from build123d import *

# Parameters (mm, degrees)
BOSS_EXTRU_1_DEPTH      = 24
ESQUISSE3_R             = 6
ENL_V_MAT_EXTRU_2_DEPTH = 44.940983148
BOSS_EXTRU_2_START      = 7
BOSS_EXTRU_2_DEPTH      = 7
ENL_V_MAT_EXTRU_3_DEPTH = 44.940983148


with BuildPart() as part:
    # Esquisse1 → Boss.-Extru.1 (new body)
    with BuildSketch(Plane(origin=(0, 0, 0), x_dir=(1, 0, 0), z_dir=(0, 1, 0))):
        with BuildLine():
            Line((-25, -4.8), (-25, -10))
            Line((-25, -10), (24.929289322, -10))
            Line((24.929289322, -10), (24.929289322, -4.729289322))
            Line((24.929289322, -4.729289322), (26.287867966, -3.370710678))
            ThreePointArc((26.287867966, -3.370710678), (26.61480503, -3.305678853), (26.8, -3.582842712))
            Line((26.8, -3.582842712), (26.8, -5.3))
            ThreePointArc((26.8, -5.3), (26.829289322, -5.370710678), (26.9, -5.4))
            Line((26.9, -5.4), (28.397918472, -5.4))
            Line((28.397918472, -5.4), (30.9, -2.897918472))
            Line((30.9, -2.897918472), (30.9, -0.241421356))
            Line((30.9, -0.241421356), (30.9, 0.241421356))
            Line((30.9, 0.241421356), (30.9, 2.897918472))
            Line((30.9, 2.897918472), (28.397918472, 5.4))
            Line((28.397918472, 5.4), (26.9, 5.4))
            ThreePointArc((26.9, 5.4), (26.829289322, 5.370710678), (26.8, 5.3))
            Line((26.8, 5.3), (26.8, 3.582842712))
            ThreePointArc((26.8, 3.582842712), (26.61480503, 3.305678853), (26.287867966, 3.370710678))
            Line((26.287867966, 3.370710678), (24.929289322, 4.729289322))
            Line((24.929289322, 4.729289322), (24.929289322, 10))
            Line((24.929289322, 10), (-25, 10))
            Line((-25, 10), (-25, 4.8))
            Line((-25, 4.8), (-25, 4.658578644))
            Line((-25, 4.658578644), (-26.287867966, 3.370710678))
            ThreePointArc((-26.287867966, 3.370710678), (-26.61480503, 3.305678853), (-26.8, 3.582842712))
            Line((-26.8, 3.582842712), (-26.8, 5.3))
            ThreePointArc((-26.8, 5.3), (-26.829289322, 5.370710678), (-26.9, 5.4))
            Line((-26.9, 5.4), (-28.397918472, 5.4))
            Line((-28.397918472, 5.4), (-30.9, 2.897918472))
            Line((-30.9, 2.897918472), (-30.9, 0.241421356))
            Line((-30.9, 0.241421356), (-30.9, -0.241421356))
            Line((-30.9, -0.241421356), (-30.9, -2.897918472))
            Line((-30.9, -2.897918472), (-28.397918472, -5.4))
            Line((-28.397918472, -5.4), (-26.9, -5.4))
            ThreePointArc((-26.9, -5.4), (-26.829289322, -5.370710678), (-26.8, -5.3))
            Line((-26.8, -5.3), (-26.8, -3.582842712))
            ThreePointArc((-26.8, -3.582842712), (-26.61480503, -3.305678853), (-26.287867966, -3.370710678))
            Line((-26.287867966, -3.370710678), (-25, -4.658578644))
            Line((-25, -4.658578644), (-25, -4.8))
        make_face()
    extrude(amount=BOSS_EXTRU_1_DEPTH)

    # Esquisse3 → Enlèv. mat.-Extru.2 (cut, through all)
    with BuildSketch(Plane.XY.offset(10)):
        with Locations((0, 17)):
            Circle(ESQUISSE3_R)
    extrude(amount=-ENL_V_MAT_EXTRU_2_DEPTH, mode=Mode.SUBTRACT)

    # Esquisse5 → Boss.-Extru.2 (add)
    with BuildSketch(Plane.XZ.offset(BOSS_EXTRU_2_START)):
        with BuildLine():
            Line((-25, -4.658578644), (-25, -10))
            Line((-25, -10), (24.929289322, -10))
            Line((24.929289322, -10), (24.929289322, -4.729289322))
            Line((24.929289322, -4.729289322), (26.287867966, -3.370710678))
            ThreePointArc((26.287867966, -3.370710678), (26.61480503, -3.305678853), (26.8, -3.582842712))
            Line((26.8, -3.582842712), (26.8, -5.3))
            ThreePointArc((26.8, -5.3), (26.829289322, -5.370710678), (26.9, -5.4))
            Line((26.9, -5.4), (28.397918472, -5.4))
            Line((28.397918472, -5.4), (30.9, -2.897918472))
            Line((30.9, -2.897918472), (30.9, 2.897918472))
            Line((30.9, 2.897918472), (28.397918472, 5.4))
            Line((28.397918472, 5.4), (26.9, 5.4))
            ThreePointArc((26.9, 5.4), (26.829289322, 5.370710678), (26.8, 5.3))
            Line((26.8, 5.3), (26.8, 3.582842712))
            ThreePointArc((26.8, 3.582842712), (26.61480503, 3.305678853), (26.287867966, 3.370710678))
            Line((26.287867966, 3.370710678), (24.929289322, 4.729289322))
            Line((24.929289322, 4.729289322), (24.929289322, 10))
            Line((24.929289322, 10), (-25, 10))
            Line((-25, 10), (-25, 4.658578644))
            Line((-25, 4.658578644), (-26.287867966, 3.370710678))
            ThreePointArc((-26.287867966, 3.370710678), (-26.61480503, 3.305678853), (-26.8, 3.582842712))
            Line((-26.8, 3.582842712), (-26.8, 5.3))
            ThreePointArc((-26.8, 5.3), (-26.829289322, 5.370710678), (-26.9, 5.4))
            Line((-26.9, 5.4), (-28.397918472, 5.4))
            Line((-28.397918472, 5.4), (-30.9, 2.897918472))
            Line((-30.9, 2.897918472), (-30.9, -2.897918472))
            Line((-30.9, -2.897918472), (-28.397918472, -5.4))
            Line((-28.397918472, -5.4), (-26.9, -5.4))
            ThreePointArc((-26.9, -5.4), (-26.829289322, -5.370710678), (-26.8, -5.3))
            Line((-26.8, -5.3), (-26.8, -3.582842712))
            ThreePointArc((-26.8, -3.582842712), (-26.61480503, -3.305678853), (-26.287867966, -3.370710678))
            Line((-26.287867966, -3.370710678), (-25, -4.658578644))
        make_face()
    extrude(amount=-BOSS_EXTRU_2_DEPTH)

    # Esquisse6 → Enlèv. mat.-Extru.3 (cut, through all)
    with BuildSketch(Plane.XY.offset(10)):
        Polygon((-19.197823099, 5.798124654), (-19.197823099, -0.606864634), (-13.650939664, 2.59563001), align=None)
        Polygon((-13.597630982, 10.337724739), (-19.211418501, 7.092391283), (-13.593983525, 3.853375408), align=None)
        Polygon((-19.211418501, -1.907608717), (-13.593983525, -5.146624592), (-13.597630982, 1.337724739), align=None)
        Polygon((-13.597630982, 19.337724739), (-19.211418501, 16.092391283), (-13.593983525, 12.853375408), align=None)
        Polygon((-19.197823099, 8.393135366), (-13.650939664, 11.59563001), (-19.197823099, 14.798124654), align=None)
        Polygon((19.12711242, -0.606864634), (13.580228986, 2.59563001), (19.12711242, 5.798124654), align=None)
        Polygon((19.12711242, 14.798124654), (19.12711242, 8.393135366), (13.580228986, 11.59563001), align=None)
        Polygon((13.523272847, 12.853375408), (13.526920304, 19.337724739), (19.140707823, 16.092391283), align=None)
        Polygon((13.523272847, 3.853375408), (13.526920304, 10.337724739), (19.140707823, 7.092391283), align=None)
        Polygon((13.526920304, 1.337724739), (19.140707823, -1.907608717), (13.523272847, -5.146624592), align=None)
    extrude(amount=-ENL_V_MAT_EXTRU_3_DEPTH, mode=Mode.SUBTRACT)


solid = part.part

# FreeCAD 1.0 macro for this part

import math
import FreeCAD as App
import Part
import Sketcher
from FreeCAD import Vector
Q = App.Units.Quantity

doc = App.newDocument("Part")
body = doc.addObject("PartDesign::Body", "Body")

sketch1 = body.newObject("Sketcher::SketchObject", "Sketch")
sketch1.AttachmentSupport = (doc.getObject("XZ_Plane"), [""])
sketch1.MapMode = "FlatFace"
sketch1.addGeometry([
    Part.LineSegment(Vector(-25, 10, 0), Vector(24.93, 10, 0)),
    Part.LineSegment(Vector(24.93, 10, 0), Vector(24.93, 4.73, 0)),
    Part.LineSegment(Vector(24.93, 4.73, 0), Vector(26.29, 3.37, 0)),
    Part.ArcOfCircle(Part.Circle(Vector(26.5, 3.58, 0), Vector(0, 0, 1), 0.3), math.radians(-135), math.radians(0)),
    Part.LineSegment(Vector(26.8, 3.58, 0), Vector(26.8, 5.3, 0)),
    Part.ArcOfCircle(Part.Circle(Vector(26.9, 5.3, 0), Vector(0, 0, 1), 0.1), math.radians(90), math.radians(180)),
    Part.LineSegment(Vector(26.9, 5.4, 0), Vector(28.4, 5.4, 0)),
    Part.LineSegment(Vector(28.4, 5.4, 0), Vector(30.9, 2.9, 0)),
    Part.LineSegment(Vector(30.9, 2.9, 0), Vector(30.9, -2.9, 0)),
    Part.LineSegment(Vector(30.9, -2.9, 0), Vector(28.4, -5.4, 0)),
    Part.LineSegment(Vector(28.4, -5.4, 0), Vector(26.9, -5.4, 0)),
    Part.ArcOfCircle(Part.Circle(Vector(26.9, -5.3, 0), Vector(0, 0, 1), 0.1), math.radians(180), math.radians(270)),
    Part.LineSegment(Vector(26.8, -5.3, 0), Vector(26.8, -3.58, 0)),
    Part.ArcOfCircle(Part.Circle(Vector(26.5, -3.58, 0), Vector(0, 0, 1), 0.3), math.radians(0), math.radians(135)),
    Part.LineSegment(Vector(26.29, -3.37, 0), Vector(24.93, -4.73, 0)),
    Part.LineSegment(Vector(24.93, -4.73, 0), Vector(24.93, -10, 0)),
    Part.LineSegment(Vector(24.93, -10, 0), Vector(-25, -10, 0)),
    Part.LineSegment(Vector(-25, -10, 0), Vector(-25, -4.66, 0)),
    Part.LineSegment(Vector(-25, -4.66, 0), Vector(-26.29, -3.37, 0)),
    Part.ArcOfCircle(Part.Circle(Vector(-26.5, -3.58, 0), Vector(0, 0, 1), 0.3), math.radians(45), math.radians(180)),
    Part.LineSegment(Vector(-26.8, -3.58, 0), Vector(-26.8, -5.3, 0)),
    Part.ArcOfCircle(Part.Circle(Vector(-26.9, -5.3, 0), Vector(0, 0, 1), 0.1), math.radians(-90), math.radians(0)),
    Part.LineSegment(Vector(-26.9, -5.4, 0), Vector(-28.4, -5.4, 0)),
    Part.LineSegment(Vector(-28.4, -5.4, 0), Vector(-30.9, -2.9, 0)),
    Part.LineSegment(Vector(-30.9, -2.9, 0), Vector(-30.9, 2.9, 0)),
    Part.LineSegment(Vector(-30.9, 2.9, 0), Vector(-28.4, 5.4, 0)),
    Part.LineSegment(Vector(-28.4, 5.4, 0), Vector(-26.9, 5.4, 0)),
    Part.ArcOfCircle(Part.Circle(Vector(-26.9, 5.3, 0), Vector(0, 0, 1), 0.1), math.radians(0), math.radians(90)),
    Part.LineSegment(Vector(-26.8, 5.3, 0), Vector(-26.8, 3.58, 0)),
    Part.ArcOfCircle(Part.Circle(Vector(-26.5, 3.58, 0), Vector(0, 0, 1), 0.3), math.radians(-180), math.radians(-45)),
    Part.LineSegment(Vector(-26.29, 3.37, 0), Vector(-25, 4.66, 0)),
    Part.LineSegment(Vector(-25, 4.66, 0), Vector(-25, 10, 0)),
], False)
sketch1.addConstraint([
    Sketcher.Constraint("Coincident", 0, 2, 1, 1),
    Sketcher.Constraint("Coincident", 1, 2, 2, 1),
    Sketcher.Constraint("Tangent", 2, 2, 3, 1),
    Sketcher.Constraint("Tangent", 3, 2, 4, 1),
    Sketcher.Constraint("Tangent", 4, 2, 5, 2),
    Sketcher.Constraint("Tangent", 5, 1, 6, 1),
    Sketcher.Constraint("Coincident", 6, 2, 7, 1),
    Sketcher.Constraint("Coincident", 7, 2, 8, 1),
    Sketcher.Constraint("Coincident", 8, 2, 9, 1),
    Sketcher.Constraint("Coincident", 9, 2, 10, 1),
    Sketcher.Constraint("Tangent", 10, 2, 11, 2),
    Sketcher.Constraint("Tangent", 11, 1, 12, 1),
    Sketcher.Constraint("Tangent", 12, 2, 13, 1),
    Sketcher.Constraint("Tangent", 13, 2, 14, 1),
    Sketcher.Constraint("Coincident", 14, 2, 15, 1),
    Sketcher.Constraint("Coincident", 15, 2, 16, 1),
    Sketcher.Constraint("Coincident", 16, 2, 17, 1),
    Sketcher.Constraint("Coincident", 17, 2, 18, 1),
    Sketcher.Constraint("Tangent", 18, 2, 19, 1),
    Sketcher.Constraint("Tangent", 19, 2, 20, 1),
    Sketcher.Constraint("Tangent", 20, 2, 21, 2),
    Sketcher.Constraint("Tangent", 21, 1, 22, 1),
    Sketcher.Constraint("Coincident", 22, 2, 23, 1),
    Sketcher.Constraint("Coincident", 23, 2, 24, 1),
    Sketcher.Constraint("Coincident", 24, 2, 25, 1),
    Sketcher.Constraint("Coincident", 25, 2, 26, 1),
    Sketcher.Constraint("Tangent", 26, 2, 27, 2),
    Sketcher.Constraint("Tangent", 27, 1, 28, 1),
    Sketcher.Constraint("Tangent", 28, 2, 29, 1),
    Sketcher.Constraint("Tangent", 29, 2, 30, 1),
    Sketcher.Constraint("Coincident", 30, 2, 31, 1),
    Sketcher.Constraint("Coincident", 31, 2, 0, 1),
    Sketcher.Constraint("Horizontal", 0),
    Sketcher.Constraint("Vertical", 1),
    Sketcher.Constraint("Vertical", 4),
    Sketcher.Constraint("Horizontal", 6),
    Sketcher.Constraint("Vertical", 8),
    Sketcher.Constraint("Horizontal", 10),
    Sketcher.Constraint("Vertical", 12),
    Sketcher.Constraint("Vertical", 15),
    Sketcher.Constraint("Horizontal", 16),
    Sketcher.Constraint("Vertical", 17),
    Sketcher.Constraint("Vertical", 20),
    Sketcher.Constraint("Horizontal", 22),
    Sketcher.Constraint("Vertical", 24),
    Sketcher.Constraint("Horizontal", 26),
    Sketcher.Constraint("Vertical", 28),
    Sketcher.Constraint("Vertical", 31),
    Sketcher.Constraint("Equal", 5, 11),
    Sketcher.Constraint("Equal", 3, 13),
    Sketcher.Constraint("Equal", 13, 19),
    Sketcher.Constraint("Equal", 11, 21),
    Sketcher.Constraint("Equal", 21, 27),
    Sketcher.Constraint("Equal", 19, 29),
    Sketcher.Constraint("Symmetric", 3, 3, 19, 3, -1, 1),
    Sketcher.Constraint("Symmetric", 11, 3, 27, 3, -1, 1),
    Sketcher.Constraint("Symmetric", 6, 2, 22, 2, -1, 1),
    Sketcher.Constraint("Symmetric", 7, 2, 23, 2, -1, 1),
    Sketcher.Constraint("Symmetric", 13, 2, 29, 2, -1, 1),
    Sketcher.Constraint("Symmetric", 13, 3, 19, 3, -2),
    Sketcher.Constraint("Symmetric", 9, 2, 22, 2, -2),
    Sketcher.Constraint("Symmetric", 1, 2, 14, 2, -1),
    Sketcher.Constraint("Symmetric", 17, 2, 30, 2, -1),
    Sketcher.Constraint("Parallel", 2, 7),
    Sketcher.Constraint("Perpendicular", 7, 9),
    Sketcher.Constraint("Parallel", 9, 14),
    Sketcher.Constraint("Perpendicular", 23, 25),
    Sketcher.Constraint("Horizontal", 7, 2, 24, 2),
    Sketcher.Constraint("Equal", 1, 15),
    Sketcher.Constraint("Radius", 3, Q("0.3 mm")),
    Sketcher.Constraint("Radius", 5, Q("0.1 mm")),
    Sketcher.Constraint("DistanceY", -1, 1, 0, 2, Q("10 mm")),
    Sketcher.Constraint("DistanceX", 16, 2, -1, 1, Q("25 mm")),
    Sketcher.Constraint("DistanceX", 19, 3, 13, 3, Q("53 mm")),
    Sketcher.Constraint("DistanceX", 5, 3, 7, 2, Q("4 mm")),
    Sketcher.Constraint("DistanceY", -1, 1, 5, 3, Q("5.3 mm")),
    Sketcher.Constraint("DistanceX", 0, 1, 0, 2, Q("49.929289 mm")),
    Sketcher.Constraint("DistanceX", 6, 1, 6, 2, Q("1.497918 mm")),
    Sketcher.Constraint("DistanceY", 1, 2, 1, 1, Q("5.270711 mm")),
])
pad1 = body.newObject("PartDesign::Pad", "Pad")
pad1.Profile = sketch1
pad1.Length = 24
pad1.Reversed = True

sketch2 = body.newObject("Sketcher::SketchObject", "Sketch001")
sketch2.AttachmentSupport = (doc.getObject("XY_Plane"), [""])
sketch2.MapMode = "FlatFace"
sketch2.AttachmentOffset = App.Placement(Vector(0, 0, 10), App.Rotation())
sketch2.addGeometry(Part.Circle(Vector(0, 17, 0), Vector(0, 0, 1), 6), False)
sketch2.addConstraint([
    Sketcher.Constraint("PointOnObject", 0, 3, -2),
    Sketcher.Constraint("Diameter", 0, Q("12 mm")),
    Sketcher.Constraint("DistanceY", -1, 1, 0, 3, Q("17 mm")),
])
pocket1 = body.newObject("PartDesign::Pocket", "Pocket")
pocket1.Profile = sketch2
pocket1.Type = "ThroughAll"

sketch3 = body.newObject("Sketcher::SketchObject", "Sketch002")
sketch3.AttachmentSupport = (doc.getObject("XZ_Plane"), [""])
sketch3.MapMode = "FlatFace"
sketch3.AttachmentOffset = App.Placement(Vector(0, 0, 7), App.Rotation())
sketch3.addGeometry([
    Part.LineSegment(Vector(-25, -4.66, 0), Vector(-25, -10, 0)),
    Part.LineSegment(Vector(-25, -10, 0), Vector(24.93, -10, 0)),
    Part.LineSegment(Vector(24.93, -10, 0), Vector(24.93, -4.73, 0)),
    Part.LineSegment(Vector(24.93, -4.73, 0), Vector(26.29, -3.37, 0)),
    Part.ArcOfCircle(Part.Circle(Vector(26.5, -3.58, 0), Vector(0, 0, 1), 0.3), math.radians(0), math.radians(135)),
    Part.LineSegment(Vector(26.8, -3.58, 0), Vector(26.8, -5.3, 0)),
    Part.ArcOfCircle(Part.Circle(Vector(26.9, -5.3, 0), Vector(0, 0, 1), 0.1), math.radians(180), math.radians(270)),
    Part.LineSegment(Vector(26.9, -5.4, 0), Vector(28.4, -5.4, 0)),
    Part.LineSegment(Vector(28.4, -5.4, 0), Vector(30.9, -2.9, 0)),
    Part.LineSegment(Vector(30.9, -2.9, 0), Vector(30.9, 2.9, 0)),
    Part.LineSegment(Vector(30.9, 2.9, 0), Vector(28.4, 5.4, 0)),
    Part.LineSegment(Vector(28.4, 5.4, 0), Vector(26.9, 5.4, 0)),
    Part.ArcOfCircle(Part.Circle(Vector(26.9, 5.3, 0), Vector(0, 0, 1), 0.1), math.radians(90), math.radians(180)),
    Part.LineSegment(Vector(26.8, 5.3, 0), Vector(26.8, 3.58, 0)),
    Part.ArcOfCircle(Part.Circle(Vector(26.5, 3.58, 0), Vector(0, 0, 1), 0.3), math.radians(-135), math.radians(0)),
    Part.LineSegment(Vector(26.29, 3.37, 0), Vector(24.93, 4.73, 0)),
    Part.LineSegment(Vector(24.93, 4.73, 0), Vector(24.93, 10, 0)),
    Part.LineSegment(Vector(24.93, 10, 0), Vector(-25, 10, 0)),
    Part.LineSegment(Vector(-25, 10, 0), Vector(-25, 4.66, 0)),
    Part.LineSegment(Vector(-25, 4.66, 0), Vector(-26.29, 3.37, 0)),
    Part.ArcOfCircle(Part.Circle(Vector(-26.5, 3.58, 0), Vector(0, 0, 1), 0.3), math.radians(-180), math.radians(-45)),
    Part.LineSegment(Vector(-26.8, 3.58, 0), Vector(-26.8, 5.3, 0)),
    Part.ArcOfCircle(Part.Circle(Vector(-26.9, 5.3, 0), Vector(0, 0, 1), 0.1), math.radians(0), math.radians(90)),
    Part.LineSegment(Vector(-26.9, 5.4, 0), Vector(-28.4, 5.4, 0)),
    Part.LineSegment(Vector(-28.4, 5.4, 0), Vector(-30.9, 2.9, 0)),
    Part.LineSegment(Vector(-30.9, 2.9, 0), Vector(-30.9, -2.9, 0)),
    Part.LineSegment(Vector(-30.9, -2.9, 0), Vector(-28.4, -5.4, 0)),
    Part.LineSegment(Vector(-28.4, -5.4, 0), Vector(-26.9, -5.4, 0)),
    Part.ArcOfCircle(Part.Circle(Vector(-26.9, -5.3, 0), Vector(0, 0, 1), 0.1), math.radians(-90), math.radians(0)),
    Part.LineSegment(Vector(-26.8, -5.3, 0), Vector(-26.8, -3.58, 0)),
    Part.ArcOfCircle(Part.Circle(Vector(-26.5, -3.58, 0), Vector(0, 0, 1), 0.3), math.radians(45), math.radians(180)),
    Part.LineSegment(Vector(-26.29, -3.37, 0), Vector(-25, -4.66, 0)),
], False)
sketch3.addConstraint([
    Sketcher.Constraint("Coincident", 0, 2, 1, 1),
    Sketcher.Constraint("Coincident", 1, 2, 2, 1),
    Sketcher.Constraint("Coincident", 2, 2, 3, 1),
    Sketcher.Constraint("Tangent", 3, 2, 4, 2),
    Sketcher.Constraint("Tangent", 4, 1, 5, 1),
    Sketcher.Constraint("Tangent", 5, 2, 6, 1),
    Sketcher.Constraint("Tangent", 6, 2, 7, 1),
    Sketcher.Constraint("Coincident", 7, 2, 8, 1),
    Sketcher.Constraint("Coincident", 8, 2, 9, 1),
    Sketcher.Constraint("Coincident", 9, 2, 10, 1),
    Sketcher.Constraint("Coincident", 10, 2, 11, 1),
    Sketcher.Constraint("Tangent", 11, 2, 12, 1),
    Sketcher.Constraint("Tangent", 12, 2, 13, 1),
    Sketcher.Constraint("Tangent", 13, 2, 14, 2),
    Sketcher.Constraint("Tangent", 14, 1, 15, 1),
    Sketcher.Constraint("Coincident", 15, 2, 16, 1),
    Sketcher.Constraint("Coincident", 16, 2, 17, 1),
    Sketcher.Constraint("Coincident", 17, 2, 18, 1),
    Sketcher.Constraint("Coincident", 18, 2, 19, 1),
    Sketcher.Constraint("Tangent", 19, 2, 20, 2),
    Sketcher.Constraint("Tangent", 20, 1, 21, 1),
    Sketcher.Constraint("Tangent", 21, 2, 22, 1),
    Sketcher.Constraint("Tangent", 22, 2, 23, 1),
    Sketcher.Constraint("Coincident", 23, 2, 24, 1),
    Sketcher.Constraint("Coincident", 24, 2, 25, 1),
    Sketcher.Constraint("Coincident", 25, 2, 26, 1),
    Sketcher.Constraint("Coincident", 26, 2, 27, 1),
    Sketcher.Constraint("Tangent", 27, 2, 28, 1),
    Sketcher.Constraint("Tangent", 28, 2, 29, 1),
    Sketcher.Constraint("Tangent", 29, 2, 30, 2),
    Sketcher.Constraint("Tangent", 30, 1, 31, 1),
    Sketcher.Constraint("Coincident", 31, 2, 0, 1),
    Sketcher.Constraint("Vertical", 0),
    Sketcher.Constraint("Horizontal", 1),
    Sketcher.Constraint("Vertical", 2),
    Sketcher.Constraint("Vertical", 5),
    Sketcher.Constraint("Horizontal", 7),
    Sketcher.Constraint("Vertical", 9),
    Sketcher.Constraint("Horizontal", 11),
    Sketcher.Constraint("Vertical", 13),
    Sketcher.Constraint("Vertical", 16),
    Sketcher.Constraint("Horizontal", 17),
    Sketcher.Constraint("Vertical", 18),
    Sketcher.Constraint("Vertical", 21),
    Sketcher.Constraint("Horizontal", 23),
    Sketcher.Constraint("Vertical", 25),
    Sketcher.Constraint("Horizontal", 27),
    Sketcher.Constraint("Vertical", 29),
    Sketcher.Constraint("Equal", 6, 12),
    Sketcher.Constraint("Equal", 4, 14),
    Sketcher.Constraint("Equal", 14, 20),
    Sketcher.Constraint("Equal", 12, 22),
    Sketcher.Constraint("Equal", 22, 28),
    Sketcher.Constraint("Equal", 20, 30),
    Sketcher.Constraint("Symmetric", 4, 3, 20, 3, -1, 1),
    Sketcher.Constraint("Symmetric", 12, 3, 28, 3, -1, 1),
    Sketcher.Constraint("Symmetric", 7, 2, 23, 2, -1, 1),
    Sketcher.Constraint("Symmetric", 8, 2, 24, 2, -1, 1),
    Sketcher.Constraint("Symmetric", 14, 1, 30, 1, -1, 1),
    Sketcher.Constraint("Symmetric", 14, 3, 20, 3, -2),
    Sketcher.Constraint("Symmetric", 10, 2, 23, 2, -2),
    Sketcher.Constraint("Symmetric", 2, 2, 15, 2, -1),
    Sketcher.Constraint("Symmetric", 0, 2, 17, 2, -1),
    Sketcher.Constraint("Parallel", 3, 8),
    Sketcher.Constraint("Perpendicular", 8, 10),
    Sketcher.Constraint("Parallel", 10, 15),
    Sketcher.Constraint("Perpendicular", 15, 19),
    Sketcher.Constraint("Perpendicular", 24, 26),
    Sketcher.Constraint("Horizontal", 8, 2, 25, 2),
    Sketcher.Constraint("Radius", 4, Q("0.3 mm")),
    Sketcher.Constraint("Radius", 6, Q("0.1 mm")),
    Sketcher.Constraint("DistanceX", 0, 2, -1, 1, Q("25 mm")),
    Sketcher.Constraint("DistanceY", 0, 2, -1, 1, Q("10 mm")),
    Sketcher.Constraint("DistanceX", 20, 3, 14, 3, Q("53 mm")),
    Sketcher.Constraint("DistanceX", 6, 3, 8, 2, Q("4 mm")),
    Sketcher.Constraint("DistanceY", 6, 3, -1, 1, Q("5.3 mm")),
    Sketcher.Constraint("DistanceX", 1, 1, 1, 2, Q("49.929289 mm")),
    Sketcher.Constraint("DistanceX", 7, 1, 7, 2, Q("1.497918 mm")),
    Sketcher.Constraint("DistanceY", 0, 2, 0, 1, Q("5.341421 mm")),
])
pad2 = body.newObject("PartDesign::Pad", "Pad001")
pad2.Profile = sketch3
pad2.Length = 7
pad2.Reversed = True

sketch4 = body.newObject("Sketcher::SketchObject", "Sketch003")
sketch4.AttachmentSupport = (doc.getObject("XY_Plane"), [""])
sketch4.MapMode = "FlatFace"
sketch4.AttachmentOffset = App.Placement(Vector(0, 0, 10), App.Rotation())
sketch4.addGeometry([
    Part.LineSegment(Vector(-19, 6, 0), Vector(-19, -1, 0)),
    Part.LineSegment(Vector(-19, -1, 0), Vector(-14, 3, 0)),
    Part.LineSegment(Vector(-14, 3, 0), Vector(-19, 6, 0)),
    Part.LineSegment(Vector(-14, 10, 0), Vector(-19, 7, 0)),
    Part.LineSegment(Vector(-19, 7, 0), Vector(-14, 4, 0)),
    Part.LineSegment(Vector(-14, 4, 0), Vector(-14, 10, 0)),
    Part.LineSegment(Vector(-19, -2, 0), Vector(-14, -5, 0)),
    Part.LineSegment(Vector(-14, -5, 0), Vector(-14, 1, 0)),
    Part.LineSegment(Vector(-14, 1, 0), Vector(-19, -2, 0)),
    Part.LineSegment(Vector(-14, 19, 0), Vector(-19, 16, 0)),
    Part.LineSegment(Vector(-19, 16, 0), Vector(-14, 13, 0)),
    Part.LineSegment(Vector(-14, 13, 0), Vector(-14, 19, 0)),
    Part.LineSegment(Vector(-19, 8, 0), Vector(-14, 12, 0)),
    Part.LineSegment(Vector(-14, 12, 0), Vector(-19, 15, 0)),
    Part.LineSegment(Vector(-19, 15, 0), Vector(-19, 8, 0)),
    Part.LineSegment(Vector(14, 3, 0), Vector(19, -1, 0)),
    Part.LineSegment(Vector(19, -1, 0), Vector(19, 6, 0)),
    Part.LineSegment(Vector(19, 6, 0), Vector(14, 3, 0)),
    Part.LineSegment(Vector(19, 8, 0), Vector(19, 15, 0)),
    Part.LineSegment(Vector(19, 15, 0), Vector(14, 12, 0)),
    Part.LineSegment(Vector(14, 12, 0), Vector(19, 8, 0)),
    Part.LineSegment(Vector(14, 19, 0), Vector(14, 13, 0)),
    Part.LineSegment(Vector(14, 13, 0), Vector(19, 16, 0)),
    Part.LineSegment(Vector(19, 16, 0), Vector(14, 19, 0)),
    Part.LineSegment(Vector(14, 10, 0), Vector(14, 4, 0)),
    Part.LineSegment(Vector(14, 4, 0), Vector(19, 7, 0)),
    Part.LineSegment(Vector(19, 7, 0), Vector(14, 10, 0)),
    Part.LineSegment(Vector(19, -2, 0), Vector(14, 1, 0)),
    Part.LineSegment(Vector(14, 1, 0), Vector(14, -5, 0)),
    Part.LineSegment(Vector(14, -5, 0), Vector(19, -2, 0)),
], False)
sketch4.addConstraint([
    Sketcher.Constraint("Coincident", 0, 2, 1, 1),
    Sketcher.Constraint("Coincident", 1, 2, 2, 1),
    Sketcher.Constraint("Coincident", 2, 2, 0, 1),
    Sketcher.Constraint("Coincident", 3, 2, 4, 1),
    Sketcher.Constraint("Coincident", 4, 2, 5, 1),
    Sketcher.Constraint("Coincident", 5, 2, 3, 1),
    Sketcher.Constraint("Coincident", 6, 2, 7, 1),
    Sketcher.Constraint("Coincident", 7, 2, 8, 1),
    Sketcher.Constraint("Coincident", 8, 2, 6, 1),
    Sketcher.Constraint("Coincident", 9, 2, 10, 1),
    Sketcher.Constraint("Coincident", 10, 2, 11, 1),
    Sketcher.Constraint("Coincident", 11, 2, 9, 1),
    Sketcher.Constraint("Coincident", 12, 2, 13, 1),
    Sketcher.Constraint("Coincident", 13, 2, 14, 1),
    Sketcher.Constraint("Coincident", 14, 2, 12, 1),
    Sketcher.Constraint("Coincident", 15, 2, 16, 1),
    Sketcher.Constraint("Coincident", 16, 2, 17, 1),
    Sketcher.Constraint("Coincident", 17, 2, 15, 1),
    Sketcher.Constraint("Coincident", 18, 2, 19, 1),
    Sketcher.Constraint("Coincident", 19, 2, 20, 1),
    Sketcher.Constraint("Coincident", 20, 2, 18, 1),
    Sketcher.Constraint("Coincident", 21, 2, 22, 1),
    Sketcher.Constraint("Coincident", 22, 2, 23, 1),
    Sketcher.Constraint("Coincident", 23, 2, 21, 1),
    Sketcher.Constraint("Coincident", 24, 2, 25, 1),
    Sketcher.Constraint("Coincident", 25, 2, 26, 1),
    Sketcher.Constraint("Coincident", 26, 2, 24, 1),
    Sketcher.Constraint("Coincident", 27, 2, 28, 1),
    Sketcher.Constraint("Coincident", 28, 2, 29, 1),
    Sketcher.Constraint("Coincident", 29, 2, 27, 1),
    Sketcher.Constraint("Vertical", 0),
    Sketcher.Constraint("Vertical", 14),
    Sketcher.Constraint("Vertical", 16),
    Sketcher.Constraint("Vertical", 18),
    Sketcher.Constraint("Parallel", 4, 6),
    Sketcher.Constraint("Parallel", 5, 7),
    Sketcher.Constraint("Parallel", 3, 8),
    Sketcher.Constraint("Parallel", 8, 9),
    Sketcher.Constraint("Parallel", 6, 10),
    Sketcher.Constraint("Parallel", 7, 11),
    Sketcher.Constraint("Parallel", 1, 12),
    Sketcher.Constraint("Parallel", 2, 13),
    Sketcher.Constraint("Parallel", 13, 15),
    Sketcher.Constraint("Parallel", 12, 17),
    Sketcher.Constraint("Parallel", 17, 19),
    Sketcher.Constraint("Parallel", 15, 20),
    Sketcher.Constraint("Parallel", 21, 24),
    Sketcher.Constraint("Parallel", 22, 25),
    Sketcher.Constraint("Parallel", 23, 26),
    Sketcher.Constraint("Parallel", 26, 27),
    Sketcher.Constraint("Parallel", 24, 28),
    Sketcher.Constraint("Parallel", 25, 29),
    Sketcher.Constraint("Horizontal", 0, 2, 15, 2),
    Sketcher.Constraint("Horizontal", 2, 2, 16, 2),
    Sketcher.Constraint("Horizontal", 1, 2, 17, 2),
    Sketcher.Constraint("Horizontal", 13, 2, 18, 2),
    Sketcher.Constraint("Horizontal", 12, 2, 19, 2),
    Sketcher.Constraint("Horizontal", 10, 2, 21, 2),
    Sketcher.Constraint("Horizontal", 9, 2, 22, 2),
    Sketcher.Constraint("Horizontal", 11, 2, 23, 2),
    Sketcher.Constraint("Horizontal", 4, 2, 24, 2),
    Sketcher.Constraint("Horizontal", 3, 2, 25, 2),
    Sketcher.Constraint("Horizontal", 7, 2, 27, 2),
    Sketcher.Constraint("Horizontal", 6, 2, 28, 2),
    Sketcher.Constraint("Vertical", 4, 2, 6, 2),
    Sketcher.Constraint("Vertical", 3, 2, 8, 2),
    Sketcher.Constraint("Vertical", 8, 2, 9, 2),
    Sketcher.Constraint("Vertical", 6, 2, 10, 2),
    Sketcher.Constraint("Vertical", 1, 2, 12, 2),
    Sketcher.Constraint("Vertical", 2, 2, 13, 2),
    Sketcher.Constraint("Vertical", 16, 2, 18, 2),
    Sketcher.Constraint("Vertical", 21, 2, 24, 2),
    Sketcher.Constraint("Vertical", 26, 2, 27, 2),
    Sketcher.Constraint("Equal", 3, 4),
    Sketcher.Constraint("Equal", 4, 5),
    Sketcher.Constraint("Equal", 21, 22),
    Sketcher.Constraint("Equal", 22, 23),
    Sketcher.Constraint("Angle", 1, Q("30 deg")),
    Sketcher.Constraint("DistanceY", 6, 2, 4, 2, Q("9 mm")),
    Sketcher.Constraint("DistanceY", 3, 2, 9, 2, Q("9 mm")),
    Sketcher.Constraint("DistanceY", 16, 2, 18, 2, Q("9 mm")),
    Sketcher.Constraint("DistanceY", 0, 2, 0, 1, Q("6.404989 mm")),
    Sketcher.Constraint("DistanceY", 2, 2, 5, 2, Q("4.5396 mm")),
    Sketcher.Constraint("Distance", 3, Q("6.48435 mm")),
    Sketcher.Constraint("DistanceX", 1, 2, -1, 1, Q("13.65094 mm")),
    Sketcher.Constraint("DistanceY", -1, 1, 1, 2, Q("2.59563 mm")),
    Sketcher.Constraint("DistanceX", 3, 2, -1, 1, Q("19.211419 mm")),
    Sketcher.Constraint("DistanceY", -1, 1, 3, 2, Q("7.092391 mm")),
    Sketcher.Constraint("DistanceX", -1, 1, 17, 2, Q("13.580229 mm")),
    Sketcher.Constraint("DistanceX", -1, 1, 23, 2, Q("13.52692 mm")),
])
pocket2 = body.newObject("PartDesign::Pocket", "Pocket001")
pocket2.Profile = sketch4
pocket2.Type = "ThroughAll"

doc.recompute()
